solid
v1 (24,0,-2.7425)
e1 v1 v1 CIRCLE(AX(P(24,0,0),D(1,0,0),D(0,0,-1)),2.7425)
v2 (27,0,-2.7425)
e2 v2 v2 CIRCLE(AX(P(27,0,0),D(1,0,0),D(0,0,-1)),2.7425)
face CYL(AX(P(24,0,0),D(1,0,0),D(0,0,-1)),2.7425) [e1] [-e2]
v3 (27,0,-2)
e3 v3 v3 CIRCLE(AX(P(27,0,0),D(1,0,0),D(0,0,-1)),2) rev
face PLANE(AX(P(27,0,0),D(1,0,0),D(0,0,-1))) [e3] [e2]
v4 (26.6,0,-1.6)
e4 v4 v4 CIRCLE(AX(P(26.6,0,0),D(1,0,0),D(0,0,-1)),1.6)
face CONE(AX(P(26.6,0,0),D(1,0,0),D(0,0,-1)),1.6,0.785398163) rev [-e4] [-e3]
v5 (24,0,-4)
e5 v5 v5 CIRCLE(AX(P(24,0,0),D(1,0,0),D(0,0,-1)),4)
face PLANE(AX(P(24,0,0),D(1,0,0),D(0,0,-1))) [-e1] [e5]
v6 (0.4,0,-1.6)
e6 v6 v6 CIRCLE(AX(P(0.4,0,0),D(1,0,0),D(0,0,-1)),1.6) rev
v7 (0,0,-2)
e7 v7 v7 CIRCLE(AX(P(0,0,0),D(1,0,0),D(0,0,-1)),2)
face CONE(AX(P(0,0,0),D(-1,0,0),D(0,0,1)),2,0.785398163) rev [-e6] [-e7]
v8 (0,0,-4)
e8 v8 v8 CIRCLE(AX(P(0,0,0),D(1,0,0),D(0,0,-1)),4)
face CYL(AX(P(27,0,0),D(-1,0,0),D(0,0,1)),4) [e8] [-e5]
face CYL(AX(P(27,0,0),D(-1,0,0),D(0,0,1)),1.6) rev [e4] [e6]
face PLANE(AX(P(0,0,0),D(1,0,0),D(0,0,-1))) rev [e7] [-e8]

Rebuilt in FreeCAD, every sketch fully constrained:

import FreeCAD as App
import Part
import Sketcher
from FreeCAD import Vector
Q = App.Units.Quantity


def edges_at(feature, points):
    """Names of the edges that pass closest to the given points."""
    edges = feature.Shape.Edges
    near = lambda p: min(range(len(edges)), key=lambda i: edges[i].distToShape(Part.Vertex(*p))[0])
    return sorted({f"Edge{near(p) + 1}" for p in points})


def add_polygon(sketch, points):
    """Adds a closed chain of lines whose ends are joined by coincident constraints."""
    first, n = sketch.GeometryCount, len(points)
    for a, b in zip(points, points[1:] + points[:1]):
        sketch.addGeometry(Part.LineSegment(App.Vector(*a, 0), App.Vector(*b, 0)), False)
    for i in range(n):
        sketch.addConstraint(Sketcher.Constraint("Coincident", first + i, 2, first + (i + 1) % n, 1))

doc = App.newDocument("Part")
body = doc.addObject("PartDesign::Body", "Body")

# Sketch on YZ plane
sketch1 = body.newObject("Sketcher::SketchObject", "Sketch")
sketch1.AttachmentSupport = (doc.getObject("YZ_Plane"), [""])
sketch1.MapMode = "FlatFace"
sketch1.addGeometry(Part.Circle(Vector(0, 0, 0), Vector(0, 0, 1), 4), False)
sketch1.addGeometry(Part.Circle(Vector(0, 0, 0), Vector(0, 0, 1), 1.6), False)
sketch1.addConstraint(Sketcher.Constraint("Coincident", 0, 3, -1, 1))
sketch1.addConstraint(Sketcher.Constraint("Coincident", 1, 3, -1, 1))
sketch1.addConstraint(Sketcher.Constraint("Diameter", 0, Q("8 mm")))
sketch1.addConstraint(Sketcher.Constraint("Diameter", 1, Q("3.2 mm")))
pad1 = body.newObject("PartDesign::Pad", "Pad")
pad1.Profile = sketch1
pad1.Length = 27

# Sketch on YZ plane
sketch2 = body.newObject("Sketcher::SketchObject", "Sketch001")
sketch2.AttachmentSupport = (doc.getObject("YZ_Plane"), [""])
sketch2.MapMode = "FlatFace"
sketch2.AttachmentOffset = App.Placement(Vector(0, 0, 27), App.Rotation())
add_polygon(sketch2, [(7.927, 7.927), (-7.927, 7.927), (-7.927, -7.927), (7.927, -7.927)])  # lines 0-3
sketch2.addGeometry(Part.Circle(Vector(0, 0, 0), Vector(0, 0, 1), 2.7425), False)  # 4
sketch2.addConstraint(Sketcher.Constraint("Horizontal", 0))
sketch2.addConstraint(Sketcher.Constraint("Vertical", 1))
sketch2.addConstraint(Sketcher.Constraint("Horizontal", 2))
sketch2.addConstraint(Sketcher.Constraint("Vertical", 3))
sketch2.addConstraint(Sketcher.Constraint("Coincident", 4, 3, -1, 1))
sketch2.addConstraint(Sketcher.Constraint("Symmetric", 0, 2, 2, 2, -1, 1))
sketch2.addConstraint(Sketcher.Constraint("Equal", 2, 1))
sketch2.addConstraint(Sketcher.Constraint("Diameter", 4, Q("5.485 mm")))
sketch2.addConstraint(Sketcher.Constraint("DistanceX", 0, 2, 0, 1, Q("15.854 mm")))
pocket1 = body.newObject("PartDesign::Pocket", "Pocket")
pocket1.Profile = sketch2
pocket1.Length = 3
doc.recompute()

chamfer = body.newObject("PartDesign::Chamfer", "Chamfer")
chamfer.Base = (pocket1, edges_at(pocket1, [(0, 0, 1.6), (27, 0, 1.6)]))
chamfer.Size = 0.4

doc.recompute()
